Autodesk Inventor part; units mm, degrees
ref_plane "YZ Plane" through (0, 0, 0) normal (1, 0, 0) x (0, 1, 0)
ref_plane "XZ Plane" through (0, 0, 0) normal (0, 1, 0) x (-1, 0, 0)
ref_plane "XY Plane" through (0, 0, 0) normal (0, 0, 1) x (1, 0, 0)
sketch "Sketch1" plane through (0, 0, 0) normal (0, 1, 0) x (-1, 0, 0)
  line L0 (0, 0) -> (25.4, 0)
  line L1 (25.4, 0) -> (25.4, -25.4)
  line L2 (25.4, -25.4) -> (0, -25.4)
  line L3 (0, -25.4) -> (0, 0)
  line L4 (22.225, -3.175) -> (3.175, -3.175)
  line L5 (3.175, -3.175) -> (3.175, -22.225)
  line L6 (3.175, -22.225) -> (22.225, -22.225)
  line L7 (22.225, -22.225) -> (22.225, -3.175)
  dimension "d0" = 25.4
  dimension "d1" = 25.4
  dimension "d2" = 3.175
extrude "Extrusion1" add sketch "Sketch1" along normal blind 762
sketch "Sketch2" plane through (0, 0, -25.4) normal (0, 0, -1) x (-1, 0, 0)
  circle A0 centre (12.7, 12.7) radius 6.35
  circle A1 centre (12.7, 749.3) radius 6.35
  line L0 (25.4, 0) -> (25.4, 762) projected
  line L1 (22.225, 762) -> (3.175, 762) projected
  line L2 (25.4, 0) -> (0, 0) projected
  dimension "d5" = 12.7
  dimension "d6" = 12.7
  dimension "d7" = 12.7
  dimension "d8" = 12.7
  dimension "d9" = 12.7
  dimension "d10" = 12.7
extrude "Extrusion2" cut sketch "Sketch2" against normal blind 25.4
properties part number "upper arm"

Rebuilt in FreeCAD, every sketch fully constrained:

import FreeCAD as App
import Part
import Sketcher

V = App.Vector
Q = App.Units.Quantity

doc = App.newDocument("Part")
body = doc.addObject("PartDesign::Body", "Body")

sketch1 = doc.addObject("Sketcher::SketchObject", "Sketch")
body.addObject(sketch1)
sketch1.AttachmentSupport = (doc.XZ_Plane, [""])
sketch1.MapMode = "FlatFace"
sketch1.addGeometry(Part.LineSegment(V(-25, 0, 0), V(0, 0, 0)), False)
sketch1.addGeometry(Part.LineSegment(V(0, 0, 0), V(0, -25, 0)), False)
sketch1.addGeometry(Part.LineSegment(V(0, -25, 0), V(-25, -25, 0)), False)
sketch1.addGeometry(Part.LineSegment(V(-25, -25, 0), V(-25, 0, 0)), False)
sketch1.addGeometry(Part.LineSegment(V(-3, -3, 0), V(-22, -3, 0)), False)
sketch1.addGeometry(Part.LineSegment(V(-22, -3, 0), V(-22, -22, 0)), False)
sketch1.addGeometry(Part.LineSegment(V(-22, -22, 0), V(-3, -22, 0)), False)
sketch1.addGeometry(Part.LineSegment(V(-3, -22, 0), V(-3, -3, 0)), False)
sketch1.addConstraint(Sketcher.Constraint("Coincident", 0, 2, 1, 1))
sketch1.addConstraint(Sketcher.Constraint("Coincident", 1, 2, 2, 1))
sketch1.addConstraint(Sketcher.Constraint("Coincident", 2, 2, 3, 1))
sketch1.addConstraint(Sketcher.Constraint("Coincident", 3, 2, 0, 1))
sketch1.addConstraint(Sketcher.Constraint("Coincident", 4, 2, 5, 1))
sketch1.addConstraint(Sketcher.Constraint("Coincident", 5, 2, 6, 1))
sketch1.addConstraint(Sketcher.Constraint("Coincident", 6, 2, 7, 1))
sketch1.addConstraint(Sketcher.Constraint("Coincident", 7, 2, 4, 1))
sketch1.addConstraint(Sketcher.Constraint("Horizontal", 0))
sketch1.addConstraint(Sketcher.Constraint("Vertical", 1))
sketch1.addConstraint(Sketcher.Constraint("Horizontal", 2))
sketch1.addConstraint(Sketcher.Constraint("Vertical", 3))
sketch1.addConstraint(Sketcher.Constraint("Horizontal", 4))
sketch1.addConstraint(Sketcher.Constraint("Vertical", 5))
sketch1.addConstraint(Sketcher.Constraint("Horizontal", 6))
sketch1.addConstraint(Sketcher.Constraint("Vertical", 7))
sketch1.addConstraint(Sketcher.Constraint("Coincident", 0, 2, -1, 1))
sketch1.addConstraint(Sketcher.Constraint("Equal", 2, 1))
sketch1.addConstraint(Sketcher.Constraint("Equal", 6, 5))
sketch1.addConstraint(Sketcher.Constraint("DistanceX", 0, 1, 0, 2, Q("1 in")))
sketch1.addConstraint(Sketcher.Constraint("DistanceY", 4, 2, -1, 1, Q("0.125 in")))
sketch1.addConstraint(Sketcher.Constraint("DistanceX", 6, 2, -1, 1, Q("0.125 in")))
sketch1.addConstraint(Sketcher.Constraint("DistanceX", 3, 2, 4, 2, Q("0.125 in")))
pad1 = doc.addObject("PartDesign::Pad", "Pad")
body.addObject(pad1)
pad1.Profile = sketch1
pad1.Length = Q("30 in")
pad1.Reversed = True

sketch2 = doc.addObject("Sketcher::SketchObject", "Sketch001")
body.addObject(sketch2)
sketch2.AttachmentSupport = (doc.XY_Plane, [""])
sketch2.MapMode = "FlatFace"
sketch2.AttachmentOffset = App.Placement(V(0, 0, -1 * 25.4), App.Rotation())
sketch2.addGeometry(Part.Circle(V(-13, 13, 0), V(0, 0, 1), 6), False)
sketch2.addGeometry(Part.Circle(V(-13, 749, 0), V(0, 0, 1), 6), False)
sketch2.addConstraint(Sketcher.Constraint("Equal", 0, 1))
sketch2.addConstraint(Sketcher.Constraint("Vertical", 0, 3, 1, 3))
sketch2.addConstraint(Sketcher.Constraint("Diameter", 0, Q("0.5 in")))
sketch2.addConstraint(Sketcher.Constraint("DistanceX", 0, 3, -1, 1, Q("0.5 in")))
sketch2.addConstraint(Sketcher.Constraint("DistanceY", -1, 1, 0, 3, Q("0.5 in")))
sketch2.addConstraint(Sketcher.Constraint("DistanceY", 0, 3, 1, 3, Q("29 in")))
pocket1 = doc.addObject("PartDesign::Pocket", "Pocket")
body.addObject(pocket1)
pocket1.Profile = sketch2
pocket1.Length = Q("1 in")
pocket1.Reversed = True

doc.recompute()
